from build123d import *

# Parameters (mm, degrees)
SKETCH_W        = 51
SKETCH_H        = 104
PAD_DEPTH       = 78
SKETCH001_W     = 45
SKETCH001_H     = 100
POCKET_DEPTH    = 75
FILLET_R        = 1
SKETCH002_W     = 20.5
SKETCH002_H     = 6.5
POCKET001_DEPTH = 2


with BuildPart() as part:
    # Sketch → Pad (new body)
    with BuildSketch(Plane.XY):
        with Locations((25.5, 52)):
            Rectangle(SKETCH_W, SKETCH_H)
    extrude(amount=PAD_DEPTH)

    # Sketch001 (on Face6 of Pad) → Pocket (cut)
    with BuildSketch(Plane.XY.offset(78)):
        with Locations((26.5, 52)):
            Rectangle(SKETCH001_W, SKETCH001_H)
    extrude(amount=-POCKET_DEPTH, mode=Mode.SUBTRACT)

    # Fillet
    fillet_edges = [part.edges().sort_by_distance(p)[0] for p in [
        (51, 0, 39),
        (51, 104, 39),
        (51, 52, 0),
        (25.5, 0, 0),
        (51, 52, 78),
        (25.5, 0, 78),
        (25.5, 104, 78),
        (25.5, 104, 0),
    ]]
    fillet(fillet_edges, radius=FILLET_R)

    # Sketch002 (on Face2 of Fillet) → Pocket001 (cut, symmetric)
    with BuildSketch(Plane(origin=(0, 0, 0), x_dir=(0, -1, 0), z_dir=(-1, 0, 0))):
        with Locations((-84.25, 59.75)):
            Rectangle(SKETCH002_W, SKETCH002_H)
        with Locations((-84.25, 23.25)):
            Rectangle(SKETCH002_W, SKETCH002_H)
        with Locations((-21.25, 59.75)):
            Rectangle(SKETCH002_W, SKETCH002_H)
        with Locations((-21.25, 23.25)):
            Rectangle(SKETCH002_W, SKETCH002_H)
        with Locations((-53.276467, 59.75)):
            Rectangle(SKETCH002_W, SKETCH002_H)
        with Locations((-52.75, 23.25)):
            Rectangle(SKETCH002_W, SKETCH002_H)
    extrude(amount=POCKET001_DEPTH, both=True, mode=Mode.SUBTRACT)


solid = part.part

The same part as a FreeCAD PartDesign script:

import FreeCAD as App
import Part
import Sketcher

V = App.Vector
Q = App.Units.Quantity


def edges_at(feature, points):
    """Names of the edges that pass closest to the given points."""
    edges = feature.Shape.Edges
    near = lambda p: min(range(len(edges)), key=lambda i: edges[i].distToShape(Part.Vertex(*p))[0])
    return sorted({f"Edge{near(p) + 1}" for p in points})

doc = App.newDocument("Part")
params = doc.addObject("Spreadsheet::Sheet", "Params")
for row, (alias, value) in enumerate([
    ("sketch1_width", "51 mm"),
    ("sketch1_height", "104 mm"),
    ("pad1_length", "78 mm"),
    ("sketch2_width", "45 mm"),
    ("sketch2_height", "100 mm"),
    ("pocket1_length", "75 mm"),
    ("fillet_radius", "1 mm"),
    ("sketch3_width", "20.5 mm"),
    ("sketch3_height", "6.5 mm"),
    ("pocket2_length", "4 mm"),
], start=1):
    params.set(f"A{row}", alias)
    params.set(f"B{row}", "=" + value)
    params.setAlias(f"B{row}", alias)

body = doc.addObject("PartDesign::Body", "Body")

# Sketch on XY plane
sketch1 = doc.addObject("Sketcher::SketchObject", "Sketch")
body.addObject(sketch1)
sketch1.AttachmentSupport = (doc.XY_Plane, [""])
sketch1.MapMode = "FlatFace"
sketch1.addGeometry([
    Part.LineSegment(V(0, 104, 0), V(0, 0, 0)),
    Part.LineSegment(V(0, 0, 0), V(51, 0, 0)),
    Part.LineSegment(V(51, 0, 0), V(51, 104, 0)),
    Part.LineSegment(V(51, 104, 0), V(0, 104, 0)),
], False)
sketch1.addConstraint([
    Sketcher.Constraint("Coincident", 0, 2, 1, 1),
    Sketcher.Constraint("Coincident", 1, 2, 2, 1),
    Sketcher.Constraint("Coincident", 2, 2, 3, 1),
    Sketcher.Constraint("Coincident", 3, 2, 0, 1),
    Sketcher.Constraint("Vertical", 0),
    Sketcher.Constraint("Horizontal", 1),
    Sketcher.Constraint("Vertical", 2),
    Sketcher.Constraint("Horizontal", 3),
    Sketcher.Constraint("Coincident", 0, 2, -1, 1),
    Sketcher.Constraint("DistanceX", 1, 1, 1, 2, Q("51 mm")),
    Sketcher.Constraint("DistanceY", 0, 2, 0, 1, Q("104 mm")),
])
sketch1.setExpression("Constraints[9]", "Params.sketch1_width")
sketch1.setExpression("Constraints[10]", "Params.sketch1_height")
pad1 = doc.addObject("PartDesign::Pad", "Pad")
body.addObject(pad1)
pad1.Profile = sketch1
pad1.setExpression("Length", "Params.pad1_length")

# Sketch on XY plane
sketch2 = doc.addObject("Sketcher::SketchObject", "Sketch001")
body.addObject(sketch2)
sketch2.AttachmentSupport = (doc.XY_Plane, [""])
sketch2.MapMode = "FlatFace"
sketch2.AttachmentOffset = App.Placement(V(0, 0, 78), App.Rotation())
sketch2.addGeometry([
    Part.LineSegment(V(4, 102, 0), V(4, 2, 0)),
    Part.LineSegment(V(4, 2, 0), V(49, 2, 0)),
    Part.LineSegment(V(49, 2, 0), V(49, 102, 0)),
    Part.LineSegment(V(49, 102, 0), V(4, 102, 0)),
], False)
sketch2.addConstraint([
    Sketcher.Constraint("Coincident", 0, 2, 1, 1),
    Sketcher.Constraint("Coincident", 1, 2, 2, 1),
    Sketcher.Constraint("Coincident", 2, 2, 3, 1),
    Sketcher.Constraint("Coincident", 3, 2, 0, 1),
    Sketcher.Constraint("Vertical", 0),
    Sketcher.Constraint("Horizontal", 1),
    Sketcher.Constraint("Vertical", 2),
    Sketcher.Constraint("Horizontal", 3),
    Sketcher.Constraint("DistanceX", 1, 1, 1, 2, Q("45 mm")),
    Sketcher.Constraint("DistanceY", 0, 2, 0, 1, Q("100 mm")),
    Sketcher.Constraint("DistanceX", -1, 1, 0, 2, Q("4 mm")),
    Sketcher.Constraint("DistanceY", -1, 1, 0, 2, Q("2 mm")),
])
sketch2.setExpression("Constraints[8]", "Params.sketch2_width")
sketch2.setExpression("Constraints[9]", "Params.sketch2_height")
pocket1 = doc.addObject("PartDesign::Pocket", "Pocket")
body.addObject(pocket1)
pocket1.Profile = sketch2
pocket1.setExpression("Length", "Params.pocket1_length")
doc.recompute()

fillet = doc.addObject("PartDesign::Fillet", "Fillet")
body.addObject(fillet)
fillet.Base = (pocket1, edges_at(pocket1, [
    (51, 0, 39),
    (51, 104, 39),
    (51, 52, 0),
    (25.5, 0, 0),
    (51, 52, 78),
    (25.5, 0, 78),
    (25.5, 104, 78),
    (25.5, 104, 0),
]))
fillet.setExpression("Radius", "Params.fillet_radius")

# Sketch on YZ plane
sketch3 = doc.addObject("Sketcher::SketchObject", "Sketch002")
body.addObject(sketch3)
sketch3.AttachmentSupport = (doc.YZ_Plane, [""])
sketch3.MapMode = "FlatFace"
sketch3.addGeometry([
    Part.LineSegment(V(94.5, 63, 0), V(94.5, 56.5, 0)),  # 0
    Part.LineSegment(V(94.5, 56.5, 0), V(74, 56.5, 0)),  # 1
    Part.LineSegment(V(74, 56.5, 0), V(74, 63, 0)),  # 2
    Part.LineSegment(V(74, 63, 0), V(94.5, 63, 0)),  # 3
    Part.LineSegment(V(94.5, 26.5, 0), V(94.5, 20, 0)),  # 4
    Part.LineSegment(V(94.5, 20, 0), V(74, 20, 0)),  # 5
    Part.LineSegment(V(74, 20, 0), V(74, 26.5, 0)),  # 6
    Part.LineSegment(V(74, 26.5, 0), V(94.5, 26.5, 0)),  # 7
    Part.LineSegment(V(31.5, 63, 0), V(31.5, 56.5, 0)),  # 8
    Part.LineSegment(V(31.5, 56.5, 0), V(11, 56.5, 0)),  # 9
    Part.LineSegment(V(11, 56.5, 0), V(11, 63, 0)),  # 10
    Part.LineSegment(V(11, 63, 0), V(31.5, 63, 0)),  # 11
    Part.LineSegment(V(31.5, 26.5, 0), V(31.5, 20, 0)),  # 12
    Part.LineSegment(V(31.5, 20, 0), V(11, 20, 0)),  # 13
    Part.LineSegment(V(11, 20, 0), V(11, 26.5, 0)),  # 14
    Part.LineSegment(V(11, 26.5, 0), V(31.5, 26.5, 0)),  # 15
    Part.LineSegment(V(63.526467, 63, 0), V(63.526467, 56.5, 0)),  # 16
    Part.LineSegment(V(63.526467, 56.5, 0), V(43.026467, 56.5, 0)),  # 17
    Part.LineSegment(V(43.026467, 56.5, 0), V(43.026467, 63, 0)),  # 18
    Part.LineSegment(V(43.026467, 63, 0), V(63.526467, 63, 0)),  # 19
    Part.LineSegment(V(63, 26.5, 0), V(63, 20, 0)),  # 20
    Part.LineSegment(V(63, 20, 0), V(42.5, 20, 0)),  # 21
    Part.LineSegment(V(42.5, 20, 0), V(42.5, 26.5, 0)),  # 22
    Part.LineSegment(V(42.5, 26.5, 0), V(63, 26.5, 0)),  # 23
], False)
sketch3.addConstraint([
    Sketcher.Constraint("Coincident", 0, 2, 1, 1),
    Sketcher.Constraint("Coincident", 1, 2, 2, 1),
    Sketcher.Constraint("Coincident", 2, 2, 3, 1),
    Sketcher.Constraint("Coincident", 3, 2, 0, 1),
    Sketcher.Constraint("Coincident", 4, 2, 5, 1),
    Sketcher.Constraint("Coincident", 5, 2, 6, 1),
    Sketcher.Constraint("Coincident", 6, 2, 7, 1),
    Sketcher.Constraint("Coincident", 7, 2, 4, 1),
    Sketcher.Constraint("Coincident", 8, 2, 9, 1),
    Sketcher.Constraint("Coincident", 9, 2, 10, 1),
    Sketcher.Constraint("Coincident", 10, 2, 11, 1),
    Sketcher.Constraint("Coincident", 11, 2, 8, 1),
    Sketcher.Constraint("Coincident", 12, 2, 13, 1),
    Sketcher.Constraint("Coincident", 13, 2, 14, 1),
    Sketcher.Constraint("Coincident", 14, 2, 15, 1),
    Sketcher.Constraint("Coincident", 15, 2, 12, 1),
    Sketcher.Constraint("Coincident", 16, 2, 17, 1),
    Sketcher.Constraint("Coincident", 17, 2, 18, 1),
    Sketcher.Constraint("Coincident", 18, 2, 19, 1),
    Sketcher.Constraint("Coincident", 19, 2, 16, 1),
    Sketcher.Constraint("Coincident", 20, 2, 21, 1),
    Sketcher.Constraint("Coincident", 21, 2, 22, 1),
    Sketcher.Constraint("Coincident", 22, 2, 23, 1),
    Sketcher.Constraint("Coincident", 23, 2, 20, 1),
    Sketcher.Constraint("Vertical", 0),
    Sketcher.Constraint("Horizontal", 1),
    Sketcher.Constraint("Vertical", 2),
    Sketcher.Constraint("Horizontal", 3),
    Sketcher.Constraint("Vertical", 4),
    Sketcher.Constraint("Horizontal", 5),
    Sketcher.Constraint("Vertical", 6),
    Sketcher.Constraint("Horizontal", 7),
    Sketcher.Constraint("Vertical", 8),
    Sketcher.Constraint("Horizontal", 9),
    Sketcher.Constraint("Vertical", 10),
    Sketcher.Constraint("Horizontal", 11),
    Sketcher.Constraint("Vertical", 12),
    Sketcher.Constraint("Horizontal", 13),
    Sketcher.Constraint("Vertical", 14),
    Sketcher.Constraint("Horizontal", 15),
    Sketcher.Constraint("Vertical", 16),
    Sketcher.Constraint("Horizontal", 17),
    Sketcher.Constraint("Vertical", 18),
    Sketcher.Constraint("Horizontal", 19),
    Sketcher.Constraint("Vertical", 20),
    Sketcher.Constraint("Horizontal", 21),
    Sketcher.Constraint("Vertical", 22),
    Sketcher.Constraint("Horizontal", 23),
    Sketcher.Constraint("Horizontal", 1, 2, 8, 2),
    Sketcher.Constraint("Horizontal", 3, 2, 10, 2),
    Sketcher.Constraint("Horizontal", 5, 2, 12, 2),
    Sketcher.Constraint("Horizontal", 7, 2, 14, 2),
    Sketcher.Constraint("Horizontal", 9, 2, 16, 2),
    Sketcher.Constraint("Horizontal", 11, 2, 18, 2),
    Sketcher.Constraint("Horizontal", 13, 2, 20, 2),
    Sketcher.Constraint("Horizontal", 15, 2, 22, 2),
    Sketcher.Constraint("Vertical", 3, 2, 4, 2),
    Sketcher.Constraint("Vertical", 2, 2, 5, 2),
    Sketcher.Constraint("Vertical", 11, 2, 12, 2),
    Sketcher.Constraint("Vertical", 10, 2, 13, 2),
    Sketcher.Constraint("Equal", 7, 9),
    Sketcher.Constraint("Equal", 15, 17),
    Sketcher.Constraint("Equal", 19, 21),
    Sketcher.Constraint("Equal", 2, 4),
    Sketcher.Constraint("DistanceX", 1, 2, 1, 1, Q("20.5 mm")),
    Sketcher.Constraint("DistanceY", 0, 2, 0, 1, Q("6.5 mm")),
    Sketcher.Constraint("DistanceX", -1, 1, 1, 2, Q("74 mm")),
    Sketcher.Constraint("DistanceY", -1, 1, 2, 2, Q("63 mm")),
    Sketcher.Constraint("DistanceY", -1, 1, 4, 2, Q("20 mm")),
    Sketcher.Constraint("DistanceX", -1, 1, 9, 2, Q("11 mm")),
    Sketcher.Constraint("DistanceX", -1, 1, 20, 2, Q("63 mm")),
    Sketcher.Constraint("DistanceX", -1, 1, 16, 2, Q("63.526467 mm")),
])
sketch3.setExpression("Constraints[64]", "Params.sketch3_width")
sketch3.setExpression("Constraints[65]", "Params.sketch3_height")
pocket2 = doc.addObject("PartDesign::Pocket", "Pocket001")
body.addObject(pocket2)
pocket2.Profile = sketch3
pocket2.setExpression("Length", "Params.pocket2_length")
pocket2.Midplane = True

doc.recompute()
